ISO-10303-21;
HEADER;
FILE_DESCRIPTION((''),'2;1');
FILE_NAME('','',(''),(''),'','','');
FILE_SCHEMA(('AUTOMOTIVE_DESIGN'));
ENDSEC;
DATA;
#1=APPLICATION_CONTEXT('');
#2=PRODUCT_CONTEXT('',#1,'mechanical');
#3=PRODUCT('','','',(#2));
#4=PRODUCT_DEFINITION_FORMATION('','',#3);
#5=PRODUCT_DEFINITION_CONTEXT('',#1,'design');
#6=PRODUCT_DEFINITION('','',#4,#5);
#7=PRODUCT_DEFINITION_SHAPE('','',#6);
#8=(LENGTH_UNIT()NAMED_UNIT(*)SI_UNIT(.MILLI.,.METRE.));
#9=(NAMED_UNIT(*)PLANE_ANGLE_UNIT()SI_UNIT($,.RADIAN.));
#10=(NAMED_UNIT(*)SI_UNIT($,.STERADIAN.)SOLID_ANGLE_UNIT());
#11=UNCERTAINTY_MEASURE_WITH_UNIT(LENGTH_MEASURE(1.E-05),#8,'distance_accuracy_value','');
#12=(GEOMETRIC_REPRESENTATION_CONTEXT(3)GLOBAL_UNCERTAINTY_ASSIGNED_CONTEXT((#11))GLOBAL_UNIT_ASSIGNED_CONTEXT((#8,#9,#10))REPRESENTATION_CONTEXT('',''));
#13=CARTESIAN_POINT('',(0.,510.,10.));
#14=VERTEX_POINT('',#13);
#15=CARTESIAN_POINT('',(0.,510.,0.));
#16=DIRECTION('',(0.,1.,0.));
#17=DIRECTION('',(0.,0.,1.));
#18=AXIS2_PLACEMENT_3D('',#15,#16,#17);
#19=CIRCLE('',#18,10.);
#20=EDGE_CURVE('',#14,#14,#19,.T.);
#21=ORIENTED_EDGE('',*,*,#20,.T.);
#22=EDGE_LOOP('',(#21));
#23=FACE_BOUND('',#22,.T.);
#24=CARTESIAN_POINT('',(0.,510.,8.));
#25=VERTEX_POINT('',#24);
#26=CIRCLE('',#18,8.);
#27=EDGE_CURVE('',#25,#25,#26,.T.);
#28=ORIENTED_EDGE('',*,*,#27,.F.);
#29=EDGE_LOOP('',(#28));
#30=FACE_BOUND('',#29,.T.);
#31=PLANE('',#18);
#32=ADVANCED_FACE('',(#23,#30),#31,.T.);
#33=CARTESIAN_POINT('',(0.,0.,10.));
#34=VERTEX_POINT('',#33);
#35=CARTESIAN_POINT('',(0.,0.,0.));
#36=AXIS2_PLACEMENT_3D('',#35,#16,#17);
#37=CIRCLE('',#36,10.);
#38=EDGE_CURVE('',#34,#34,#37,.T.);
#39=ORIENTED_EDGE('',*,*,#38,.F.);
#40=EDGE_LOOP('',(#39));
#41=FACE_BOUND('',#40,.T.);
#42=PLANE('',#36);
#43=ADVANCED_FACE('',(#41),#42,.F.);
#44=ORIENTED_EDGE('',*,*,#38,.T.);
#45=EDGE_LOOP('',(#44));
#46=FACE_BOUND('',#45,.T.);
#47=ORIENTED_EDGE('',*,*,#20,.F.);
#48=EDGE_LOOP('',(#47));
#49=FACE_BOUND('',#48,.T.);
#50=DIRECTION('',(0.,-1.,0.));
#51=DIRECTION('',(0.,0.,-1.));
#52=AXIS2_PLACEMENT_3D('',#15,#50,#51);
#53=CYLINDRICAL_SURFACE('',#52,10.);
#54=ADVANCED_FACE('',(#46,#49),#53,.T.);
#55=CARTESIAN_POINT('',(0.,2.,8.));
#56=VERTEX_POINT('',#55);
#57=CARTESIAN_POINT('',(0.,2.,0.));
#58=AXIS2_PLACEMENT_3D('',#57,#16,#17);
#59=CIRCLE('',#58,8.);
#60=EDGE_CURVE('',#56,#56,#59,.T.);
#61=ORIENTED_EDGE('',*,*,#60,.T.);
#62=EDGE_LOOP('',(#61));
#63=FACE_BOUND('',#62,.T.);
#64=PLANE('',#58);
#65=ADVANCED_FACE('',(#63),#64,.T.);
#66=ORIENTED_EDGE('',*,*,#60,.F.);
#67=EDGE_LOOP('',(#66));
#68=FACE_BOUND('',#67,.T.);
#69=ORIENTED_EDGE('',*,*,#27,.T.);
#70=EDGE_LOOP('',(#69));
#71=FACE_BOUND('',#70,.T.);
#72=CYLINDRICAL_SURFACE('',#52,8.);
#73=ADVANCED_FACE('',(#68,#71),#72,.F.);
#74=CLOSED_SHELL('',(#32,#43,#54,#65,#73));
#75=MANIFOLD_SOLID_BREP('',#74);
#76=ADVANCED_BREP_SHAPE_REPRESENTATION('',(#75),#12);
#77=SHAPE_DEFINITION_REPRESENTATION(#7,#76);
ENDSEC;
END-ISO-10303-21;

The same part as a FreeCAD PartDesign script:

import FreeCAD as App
import Part
import Sketcher


def faces_at(feature, points):
    """Names of the faces that lie closest to the given points."""
    faces = feature.Shape.Faces
    near = lambda p: min(range(len(faces)), key=lambda i: faces[i].distToShape(Part.Vertex(*p))[0])
    return sorted({f"Face{near(p) + 1}" for p in points})

doc = App.newDocument("Part")
body = doc.addObject("PartDesign::Body", "Body")

# Sketch on XZ plane
sketch1 = body.newObject("Sketcher::SketchObject", "Sketch")
sketch1.AttachmentSupport = (doc.getObject("XZ_Plane"), [""])
sketch1.MapMode = "FlatFace"
sketch1.addGeometry(Part.Circle(App.Vector(0, 0, 0), App.Vector(0, 0, 1), 10), False)
sketch1.addConstraint([
    Sketcher.Constraint("Coincident", 0, 3, -1, 1),
    Sketcher.Constraint("Diameter", 0, 20.0),
])
pad1 = body.newObject("PartDesign::Pad", "Pad")
pad1.Profile = sketch1
pad1.Length = 510
pad1.Reversed = True
doc.recompute()

thickness = body.newObject("PartDesign::Thickness", "Thickness")
thickness.Base = (pad1, faces_at(pad1, [(0, 510, 0)]))
thickness.Value = 2
thickness.Reversed = True
thickness.Join = "Intersection"

doc.recompute()
